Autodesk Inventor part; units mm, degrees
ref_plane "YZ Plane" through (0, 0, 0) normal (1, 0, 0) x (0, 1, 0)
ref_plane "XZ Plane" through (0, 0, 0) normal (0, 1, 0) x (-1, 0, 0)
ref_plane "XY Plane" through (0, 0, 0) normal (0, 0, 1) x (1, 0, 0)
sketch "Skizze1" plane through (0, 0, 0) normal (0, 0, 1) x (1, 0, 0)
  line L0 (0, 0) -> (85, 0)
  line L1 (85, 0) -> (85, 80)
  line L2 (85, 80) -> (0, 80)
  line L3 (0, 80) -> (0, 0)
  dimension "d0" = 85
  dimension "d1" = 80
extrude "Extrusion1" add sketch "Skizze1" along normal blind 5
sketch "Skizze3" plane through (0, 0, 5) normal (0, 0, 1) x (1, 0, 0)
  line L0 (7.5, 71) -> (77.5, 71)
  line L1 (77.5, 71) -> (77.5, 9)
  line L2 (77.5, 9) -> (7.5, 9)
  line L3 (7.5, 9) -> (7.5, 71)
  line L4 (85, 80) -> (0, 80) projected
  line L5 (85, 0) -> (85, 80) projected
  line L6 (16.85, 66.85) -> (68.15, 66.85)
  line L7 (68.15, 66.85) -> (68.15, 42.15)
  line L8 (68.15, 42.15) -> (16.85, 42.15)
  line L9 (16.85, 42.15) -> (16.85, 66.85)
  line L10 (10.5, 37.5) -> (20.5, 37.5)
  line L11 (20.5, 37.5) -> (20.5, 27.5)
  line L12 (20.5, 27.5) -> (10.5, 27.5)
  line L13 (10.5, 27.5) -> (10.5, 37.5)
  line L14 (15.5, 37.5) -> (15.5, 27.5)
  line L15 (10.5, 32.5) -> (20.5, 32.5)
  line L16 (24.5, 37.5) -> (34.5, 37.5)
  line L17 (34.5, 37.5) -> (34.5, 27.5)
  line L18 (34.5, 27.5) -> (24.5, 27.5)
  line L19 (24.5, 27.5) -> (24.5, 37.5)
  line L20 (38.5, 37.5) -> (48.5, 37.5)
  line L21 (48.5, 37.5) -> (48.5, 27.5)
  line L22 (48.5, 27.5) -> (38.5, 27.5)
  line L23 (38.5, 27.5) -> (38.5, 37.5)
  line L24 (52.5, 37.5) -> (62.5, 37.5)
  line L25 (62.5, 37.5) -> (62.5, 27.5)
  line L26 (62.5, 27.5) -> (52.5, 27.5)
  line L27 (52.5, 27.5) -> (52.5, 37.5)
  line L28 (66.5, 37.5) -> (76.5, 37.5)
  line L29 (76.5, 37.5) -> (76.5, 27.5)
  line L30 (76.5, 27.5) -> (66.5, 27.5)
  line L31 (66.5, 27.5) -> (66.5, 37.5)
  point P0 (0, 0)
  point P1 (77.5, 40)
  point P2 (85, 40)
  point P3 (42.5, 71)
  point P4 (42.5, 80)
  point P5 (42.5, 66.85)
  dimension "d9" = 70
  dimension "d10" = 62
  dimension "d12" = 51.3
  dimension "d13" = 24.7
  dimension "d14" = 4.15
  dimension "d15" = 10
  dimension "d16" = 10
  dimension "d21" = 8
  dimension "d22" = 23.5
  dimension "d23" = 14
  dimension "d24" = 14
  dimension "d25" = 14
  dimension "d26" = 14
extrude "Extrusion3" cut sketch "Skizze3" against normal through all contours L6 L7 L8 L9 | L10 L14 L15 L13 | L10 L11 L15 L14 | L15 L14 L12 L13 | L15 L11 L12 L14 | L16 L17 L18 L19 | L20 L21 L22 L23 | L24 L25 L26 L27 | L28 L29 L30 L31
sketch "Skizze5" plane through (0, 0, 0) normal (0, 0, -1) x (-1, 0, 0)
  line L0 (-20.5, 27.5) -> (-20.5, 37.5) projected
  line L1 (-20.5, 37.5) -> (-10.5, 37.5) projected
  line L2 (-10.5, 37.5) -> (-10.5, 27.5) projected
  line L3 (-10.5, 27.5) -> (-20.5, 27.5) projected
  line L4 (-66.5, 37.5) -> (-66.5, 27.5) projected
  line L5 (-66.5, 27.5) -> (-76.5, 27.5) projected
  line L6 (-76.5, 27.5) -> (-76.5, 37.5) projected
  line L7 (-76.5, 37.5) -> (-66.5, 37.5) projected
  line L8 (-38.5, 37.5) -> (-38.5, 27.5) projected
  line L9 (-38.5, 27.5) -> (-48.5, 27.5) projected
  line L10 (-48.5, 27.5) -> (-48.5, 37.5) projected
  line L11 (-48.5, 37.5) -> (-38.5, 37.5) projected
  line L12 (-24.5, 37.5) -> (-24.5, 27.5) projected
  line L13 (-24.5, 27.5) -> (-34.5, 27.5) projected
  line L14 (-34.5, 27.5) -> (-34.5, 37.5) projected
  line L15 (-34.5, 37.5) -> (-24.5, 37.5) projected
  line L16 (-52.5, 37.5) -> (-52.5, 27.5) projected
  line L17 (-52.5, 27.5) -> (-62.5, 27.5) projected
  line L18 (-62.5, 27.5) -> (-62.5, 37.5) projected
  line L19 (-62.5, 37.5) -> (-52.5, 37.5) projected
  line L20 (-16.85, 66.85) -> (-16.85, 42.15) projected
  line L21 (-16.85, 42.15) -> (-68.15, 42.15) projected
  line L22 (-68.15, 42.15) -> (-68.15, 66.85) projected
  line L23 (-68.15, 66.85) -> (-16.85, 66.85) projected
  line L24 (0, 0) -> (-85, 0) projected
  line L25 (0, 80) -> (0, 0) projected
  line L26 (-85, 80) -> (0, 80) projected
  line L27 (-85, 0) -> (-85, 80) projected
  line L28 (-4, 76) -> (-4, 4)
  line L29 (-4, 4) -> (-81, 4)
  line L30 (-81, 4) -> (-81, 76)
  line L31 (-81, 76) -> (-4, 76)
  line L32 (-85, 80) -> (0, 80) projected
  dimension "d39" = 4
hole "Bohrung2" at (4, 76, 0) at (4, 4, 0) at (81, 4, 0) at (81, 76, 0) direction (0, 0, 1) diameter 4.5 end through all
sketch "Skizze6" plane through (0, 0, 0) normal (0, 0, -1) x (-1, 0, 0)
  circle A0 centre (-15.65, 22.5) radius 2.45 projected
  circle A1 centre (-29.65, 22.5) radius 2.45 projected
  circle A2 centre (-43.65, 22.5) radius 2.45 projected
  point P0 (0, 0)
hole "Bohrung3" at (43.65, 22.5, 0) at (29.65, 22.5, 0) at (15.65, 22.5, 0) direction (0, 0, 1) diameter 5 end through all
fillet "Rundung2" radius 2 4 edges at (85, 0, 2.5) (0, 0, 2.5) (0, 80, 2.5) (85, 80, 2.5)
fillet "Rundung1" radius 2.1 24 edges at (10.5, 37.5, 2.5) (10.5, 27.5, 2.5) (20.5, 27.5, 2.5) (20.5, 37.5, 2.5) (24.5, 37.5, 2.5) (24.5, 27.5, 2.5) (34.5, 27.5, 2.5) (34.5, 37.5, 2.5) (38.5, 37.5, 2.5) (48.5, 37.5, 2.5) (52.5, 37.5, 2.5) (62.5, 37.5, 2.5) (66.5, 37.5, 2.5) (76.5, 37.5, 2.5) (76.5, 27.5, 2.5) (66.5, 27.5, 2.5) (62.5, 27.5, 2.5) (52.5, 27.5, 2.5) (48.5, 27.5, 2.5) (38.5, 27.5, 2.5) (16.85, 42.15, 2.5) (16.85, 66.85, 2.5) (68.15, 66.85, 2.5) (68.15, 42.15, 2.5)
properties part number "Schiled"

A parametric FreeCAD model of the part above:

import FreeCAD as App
import Part
import Sketcher
Q = App.Units.Quantity


def edges_at(feature, points):
    """Names of the edges that pass closest to the given points."""
    edges = feature.Shape.Edges
    near = lambda p: min(range(len(edges)), key=lambda i: edges[i].distToShape(Part.Vertex(*p))[0])
    return sorted({f"Edge{near(p) + 1}" for p in points})


def add_polygon(sketch, points):
    """Adds a closed chain of lines whose ends are joined by coincident constraints."""
    first, n = sketch.GeometryCount, len(points)
    for a, b in zip(points, points[1:] + points[:1]):
        sketch.addGeometry(Part.LineSegment(App.Vector(*a, 0), App.Vector(*b, 0)), False)
    for i in range(n):
        sketch.addConstraint(Sketcher.Constraint("Coincident", first + i, 2, first + (i + 1) % n, 1))

doc = App.newDocument("Part")
body = doc.addObject("PartDesign::Body", "Body")

sketch1 = body.newObject("Sketcher::SketchObject", "Sketch")
sketch1.AttachmentSupport = (doc.getObject("XY_Plane"), [""])
sketch1.MapMode = "FlatFace"
add_polygon(sketch1, [(0, 80), (0, 0), (85, 0), (85, 80)])
sketch1.addConstraint(Sketcher.Constraint("Vertical", 0))
sketch1.addConstraint(Sketcher.Constraint("Horizontal", 1))
sketch1.addConstraint(Sketcher.Constraint("Vertical", 2))
sketch1.addConstraint(Sketcher.Constraint("Horizontal", 3))
sketch1.addConstraint(Sketcher.Constraint("Coincident", 0, 2, -1, 1))
sketch1.addConstraint(Sketcher.Constraint("DistanceX", 1, 1, 1, 2, Q("85 mm")))
sketch1.addConstraint(Sketcher.Constraint("DistanceY", 0, 2, 0, 1, Q("80 mm")))
pad1 = body.newObject("PartDesign::Pad", "Pad")
pad1.Profile = sketch1
pad1.Length = 5

sketch2 = body.newObject("Sketcher::SketchObject", "Sketch001")
sketch2.AttachmentSupport = (doc.getObject("XY_Plane"), [""])
sketch2.MapMode = "FlatFace"
sketch2.AttachmentOffset = App.Placement(App.Vector(0, 0, 5), App.Rotation())
add_polygon(sketch2, [(68, 67), (17, 67), (17, 42), (68, 42)])
add_polygon(sketch2, [(10, 38), (10, 28), (20, 28), (20, 38)])
add_polygon(sketch2, [(34, 38), (24, 38), (24, 28), (34, 28)])
add_polygon(sketch2, [(48, 38), (38, 38), (38, 28), (48, 28)])
add_polygon(sketch2, [(62, 38), (52, 38), (52, 28), (62, 28)])
add_polygon(sketch2, [(76, 38), (66, 38), (66, 28), (76, 28)])
sketch2.addConstraint(Sketcher.Constraint("Horizontal", 0))
sketch2.addConstraint(Sketcher.Constraint("Vertical", 1))
sketch2.addConstraint(Sketcher.Constraint("Horizontal", 2))
sketch2.addConstraint(Sketcher.Constraint("Vertical", 3))
sketch2.addConstraint(Sketcher.Constraint("Vertical", 4))
sketch2.addConstraint(Sketcher.Constraint("Horizontal", 5))
sketch2.addConstraint(Sketcher.Constraint("Vertical", 6))
sketch2.addConstraint(Sketcher.Constraint("Horizontal", 7))
sketch2.addConstraint(Sketcher.Constraint("Horizontal", 8))
sketch2.addConstraint(Sketcher.Constraint("Vertical", 9))
sketch2.addConstraint(Sketcher.Constraint("Horizontal", 10))
sketch2.addConstraint(Sketcher.Constraint("Vertical", 11))
sketch2.addConstraint(Sketcher.Constraint("Horizontal", 12))
sketch2.addConstraint(Sketcher.Constraint("Vertical", 13))
sketch2.addConstraint(Sketcher.Constraint("Horizontal", 14))
sketch2.addConstraint(Sketcher.Constraint("Vertical", 15))
sketch2.addConstraint(Sketcher.Constraint("Horizontal", 16))
sketch2.addConstraint(Sketcher.Constraint("Vertical", 17))
sketch2.addConstraint(Sketcher.Constraint("Horizontal", 18))
sketch2.addConstraint(Sketcher.Constraint("Vertical", 19))
sketch2.addConstraint(Sketcher.Constraint("Horizontal", 20))
sketch2.addConstraint(Sketcher.Constraint("Vertical", 21))
sketch2.addConstraint(Sketcher.Constraint("Horizontal", 22))
sketch2.addConstraint(Sketcher.Constraint("Vertical", 23))
sketch2.addConstraint(Sketcher.Constraint("Horizontal", 7, 2, 8, 2))
sketch2.addConstraint(Sketcher.Constraint("Horizontal", 5, 2, 9, 2))
sketch2.addConstraint(Sketcher.Constraint("Horizontal", 11, 2, 12, 2))
sketch2.addConstraint(Sketcher.Constraint("Horizontal", 10, 2, 13, 2))
sketch2.addConstraint(Sketcher.Constraint("Horizontal", 15, 2, 16, 2))
sketch2.addConstraint(Sketcher.Constraint("Horizontal", 14, 2, 17, 2))
sketch2.addConstraint(Sketcher.Constraint("Horizontal", 19, 2, 20, 2))
sketch2.addConstraint(Sketcher.Constraint("Horizontal", 18, 2, 21, 2))
sketch2.addConstraint(Sketcher.Constraint("Equal", 7, 8))
sketch2.addConstraint(Sketcher.Constraint("Equal", 10, 12))
sketch2.addConstraint(Sketcher.Constraint("Equal", 14, 16))
sketch2.addConstraint(Sketcher.Constraint("Equal", 18, 20))
sketch2.addConstraint(Sketcher.Constraint("Equal", 22, 4))
sketch2.addConstraint(Sketcher.Constraint("DistanceX", 5, 1, 5, 2, Q("10 mm")))
sketch2.addConstraint(Sketcher.Constraint("DistanceX", 0, 2, 0, 1, Q("51.3 mm")))
sketch2.addConstraint(Sketcher.Constraint("DistanceY", 1, 2, 1, 1, Q("24.7 mm")))
sketch2.addConstraint(Sketcher.Constraint("DistanceX", 7, 2, 8, 2, Q("14 mm")))
sketch2.addConstraint(Sketcher.Constraint("DistanceX", 8, 2, 12, 2, Q("14 mm")))
sketch2.addConstraint(Sketcher.Constraint("DistanceX", 12, 2, 16, 2, Q("14 mm")))
sketch2.addConstraint(Sketcher.Constraint("DistanceX", 16, 2, 20, 2, Q("14 mm")))
sketch2.addConstraint(Sketcher.Constraint("DistanceX", -1, 1, 4, 2, Q("10.5 mm")))
sketch2.addConstraint(Sketcher.Constraint("DistanceY", -1, 1, 4, 2, Q("27.5 mm")))
sketch2.addConstraint(Sketcher.Constraint("DistanceX", -1, 1, 0, 2, Q("16.85 mm")))
sketch2.addConstraint(Sketcher.Constraint("DistanceY", -1, 1, 0, 2, Q("66.85 mm")))
pocket1 = body.newObject("PartDesign::Pocket", "Pocket")
pocket1.Profile = sketch2
pocket1.Type = "ThroughAll"

sketch3 = body.newObject("Sketcher::SketchObject", "Sketch002")
sketch3.AttachmentSupport = (doc.getObject("XY_Plane"), [""])
sketch3.MapMode = "FlatFace"
sketch3.addGeometry(Part.Circle(App.Vector(4, 76, 0), App.Vector(0, 0, 1), 2.2), False)
sketch3.addGeometry(Part.Circle(App.Vector(4, 4, 0), App.Vector(0, 0, 1), 2.2), False)
sketch3.addGeometry(Part.Circle(App.Vector(81, 4, 0), App.Vector(0, 0, 1), 2.2), False)
sketch3.addGeometry(Part.Circle(App.Vector(81, 76, 0), App.Vector(0, 0, 1), 2.2), False)
sketch3.addConstraint(Sketcher.Constraint("Equal", 0, 1))
sketch3.addConstraint(Sketcher.Constraint("Equal", 1, 2))
sketch3.addConstraint(Sketcher.Constraint("Equal", 2, 3))
sketch3.addConstraint(Sketcher.Constraint("Horizontal", 1, 3, 2, 3))
sketch3.addConstraint(Sketcher.Constraint("Horizontal", 0, 3, 3, 3))
sketch3.addConstraint(Sketcher.Constraint("Vertical", 0, 3, 1, 3))
sketch3.addConstraint(Sketcher.Constraint("Vertical", 2, 3, 3, 3))
sketch3.addConstraint(Sketcher.Constraint("Diameter", 0, Q("4.5 mm")))
sketch3.addConstraint(Sketcher.Constraint("DistanceX", -1, 1, 0, 3, Q("4 mm")))
sketch3.addConstraint(Sketcher.Constraint("DistanceY", -1, 1, 0, 3, Q("76 mm")))
sketch3.addConstraint(Sketcher.Constraint("DistanceY", -1, 1, 1, 3, Q("4 mm")))
sketch3.addConstraint(Sketcher.Constraint("DistanceX", -1, 1, 2, 3, Q("81 mm")))
doc.recompute()
hole = body.newObject("PartDesign::Hole", "Hole")
hole.Profile = sketch3
hole.ThreadType = "None"
hole.Diameter = 4.5
hole.DepthType = "ThroughAll"
hole.Reversed = True

sketch4 = body.newObject("Sketcher::SketchObject", "Sketch003")
sketch4.AttachmentSupport = (doc.getObject("XY_Plane"), [""])
sketch4.MapMode = "FlatFace"
sketch4.addGeometry(Part.Circle(App.Vector(43.6, 22.5, 0), App.Vector(0, 0, 1), 2.5), False)
sketch4.addGeometry(Part.Circle(App.Vector(29.6, 22.5, 0), App.Vector(0, 0, 1), 2.5), False)
sketch4.addGeometry(Part.Circle(App.Vector(15.7, 22.5, 0), App.Vector(0, 0, 1), 2.5), False)
sketch4.addConstraint(Sketcher.Constraint("Equal", 0, 1))
sketch4.addConstraint(Sketcher.Constraint("Equal", 1, 2))
sketch4.addConstraint(Sketcher.Constraint("Horizontal", 0, 3, 1, 3))
sketch4.addConstraint(Sketcher.Constraint("Horizontal", 1, 3, 2, 3))
sketch4.addConstraint(Sketcher.Constraint("Diameter", 0, Q("5 mm")))
sketch4.addConstraint(Sketcher.Constraint("DistanceX", 1, 3, 0, 3, Q("14 mm")))
sketch4.addConstraint(Sketcher.Constraint("DistanceX", 2, 3, 1, 3, Q("14 mm")))
sketch4.addConstraint(Sketcher.Constraint("DistanceY", -1, 1, 0, 3, Q("22.5 mm")))
sketch4.addConstraint(Sketcher.Constraint("DistanceX", -1, 1, 0, 3, Q("43.65 mm")))
doc.recompute()
hole2 = body.newObject("PartDesign::Hole", "Hole001")
hole2.Profile = sketch4
hole2.ThreadType = "None"
hole2.Diameter = 5
hole2.DepthType = "ThroughAll"
hole2.Reversed = True
doc.recompute()

fillet = body.newObject("PartDesign::Fillet", "Fillet")
fillet.Base = (hole2, edges_at(hole2, [
    (85, 0, 2.5),
    (0, 0, 2.5),
    (0, 80, 2.5),
    (85, 80, 2.5),
]))
fillet.Radius = 2
doc.recompute()

fillet2 = body.newObject("PartDesign::Fillet", "Fillet001")
fillet2.Base = (fillet, edges_at(fillet, [
    (10.5, 37.5, 2.5),
    (10.5, 27.5, 2.5),
    (20.5, 27.5, 2.5),
    (20.5, 37.5, 2.5),
    (24.5, 37.5, 2.5),
    (24.5, 27.5, 2.5),
    (34.5, 27.5, 2.5),
    (34.5, 37.5, 2.5),
    (38.5, 37.5, 2.5),
    (48.5, 37.5, 2.5),
    (52.5, 37.5, 2.5),
    (62.5, 37.5, 2.5),
    (66.5, 37.5, 2.5),
    (76.5, 37.5, 2.5),
    (76.5, 27.5, 2.5),
    (66.5, 27.5, 2.5),
    (62.5, 27.5, 2.5),
    (52.5, 27.5, 2.5),
    (48.5, 27.5, 2.5),
    (38.5, 27.5, 2.5),
    (16.85, 42.15, 2.5),
    (16.85, 66.85, 2.5),
    (68.15, 66.85, 2.5),
    (68.15, 42.15, 2.5),
]))
fillet2.Radius = 2.1

doc.recompute()
